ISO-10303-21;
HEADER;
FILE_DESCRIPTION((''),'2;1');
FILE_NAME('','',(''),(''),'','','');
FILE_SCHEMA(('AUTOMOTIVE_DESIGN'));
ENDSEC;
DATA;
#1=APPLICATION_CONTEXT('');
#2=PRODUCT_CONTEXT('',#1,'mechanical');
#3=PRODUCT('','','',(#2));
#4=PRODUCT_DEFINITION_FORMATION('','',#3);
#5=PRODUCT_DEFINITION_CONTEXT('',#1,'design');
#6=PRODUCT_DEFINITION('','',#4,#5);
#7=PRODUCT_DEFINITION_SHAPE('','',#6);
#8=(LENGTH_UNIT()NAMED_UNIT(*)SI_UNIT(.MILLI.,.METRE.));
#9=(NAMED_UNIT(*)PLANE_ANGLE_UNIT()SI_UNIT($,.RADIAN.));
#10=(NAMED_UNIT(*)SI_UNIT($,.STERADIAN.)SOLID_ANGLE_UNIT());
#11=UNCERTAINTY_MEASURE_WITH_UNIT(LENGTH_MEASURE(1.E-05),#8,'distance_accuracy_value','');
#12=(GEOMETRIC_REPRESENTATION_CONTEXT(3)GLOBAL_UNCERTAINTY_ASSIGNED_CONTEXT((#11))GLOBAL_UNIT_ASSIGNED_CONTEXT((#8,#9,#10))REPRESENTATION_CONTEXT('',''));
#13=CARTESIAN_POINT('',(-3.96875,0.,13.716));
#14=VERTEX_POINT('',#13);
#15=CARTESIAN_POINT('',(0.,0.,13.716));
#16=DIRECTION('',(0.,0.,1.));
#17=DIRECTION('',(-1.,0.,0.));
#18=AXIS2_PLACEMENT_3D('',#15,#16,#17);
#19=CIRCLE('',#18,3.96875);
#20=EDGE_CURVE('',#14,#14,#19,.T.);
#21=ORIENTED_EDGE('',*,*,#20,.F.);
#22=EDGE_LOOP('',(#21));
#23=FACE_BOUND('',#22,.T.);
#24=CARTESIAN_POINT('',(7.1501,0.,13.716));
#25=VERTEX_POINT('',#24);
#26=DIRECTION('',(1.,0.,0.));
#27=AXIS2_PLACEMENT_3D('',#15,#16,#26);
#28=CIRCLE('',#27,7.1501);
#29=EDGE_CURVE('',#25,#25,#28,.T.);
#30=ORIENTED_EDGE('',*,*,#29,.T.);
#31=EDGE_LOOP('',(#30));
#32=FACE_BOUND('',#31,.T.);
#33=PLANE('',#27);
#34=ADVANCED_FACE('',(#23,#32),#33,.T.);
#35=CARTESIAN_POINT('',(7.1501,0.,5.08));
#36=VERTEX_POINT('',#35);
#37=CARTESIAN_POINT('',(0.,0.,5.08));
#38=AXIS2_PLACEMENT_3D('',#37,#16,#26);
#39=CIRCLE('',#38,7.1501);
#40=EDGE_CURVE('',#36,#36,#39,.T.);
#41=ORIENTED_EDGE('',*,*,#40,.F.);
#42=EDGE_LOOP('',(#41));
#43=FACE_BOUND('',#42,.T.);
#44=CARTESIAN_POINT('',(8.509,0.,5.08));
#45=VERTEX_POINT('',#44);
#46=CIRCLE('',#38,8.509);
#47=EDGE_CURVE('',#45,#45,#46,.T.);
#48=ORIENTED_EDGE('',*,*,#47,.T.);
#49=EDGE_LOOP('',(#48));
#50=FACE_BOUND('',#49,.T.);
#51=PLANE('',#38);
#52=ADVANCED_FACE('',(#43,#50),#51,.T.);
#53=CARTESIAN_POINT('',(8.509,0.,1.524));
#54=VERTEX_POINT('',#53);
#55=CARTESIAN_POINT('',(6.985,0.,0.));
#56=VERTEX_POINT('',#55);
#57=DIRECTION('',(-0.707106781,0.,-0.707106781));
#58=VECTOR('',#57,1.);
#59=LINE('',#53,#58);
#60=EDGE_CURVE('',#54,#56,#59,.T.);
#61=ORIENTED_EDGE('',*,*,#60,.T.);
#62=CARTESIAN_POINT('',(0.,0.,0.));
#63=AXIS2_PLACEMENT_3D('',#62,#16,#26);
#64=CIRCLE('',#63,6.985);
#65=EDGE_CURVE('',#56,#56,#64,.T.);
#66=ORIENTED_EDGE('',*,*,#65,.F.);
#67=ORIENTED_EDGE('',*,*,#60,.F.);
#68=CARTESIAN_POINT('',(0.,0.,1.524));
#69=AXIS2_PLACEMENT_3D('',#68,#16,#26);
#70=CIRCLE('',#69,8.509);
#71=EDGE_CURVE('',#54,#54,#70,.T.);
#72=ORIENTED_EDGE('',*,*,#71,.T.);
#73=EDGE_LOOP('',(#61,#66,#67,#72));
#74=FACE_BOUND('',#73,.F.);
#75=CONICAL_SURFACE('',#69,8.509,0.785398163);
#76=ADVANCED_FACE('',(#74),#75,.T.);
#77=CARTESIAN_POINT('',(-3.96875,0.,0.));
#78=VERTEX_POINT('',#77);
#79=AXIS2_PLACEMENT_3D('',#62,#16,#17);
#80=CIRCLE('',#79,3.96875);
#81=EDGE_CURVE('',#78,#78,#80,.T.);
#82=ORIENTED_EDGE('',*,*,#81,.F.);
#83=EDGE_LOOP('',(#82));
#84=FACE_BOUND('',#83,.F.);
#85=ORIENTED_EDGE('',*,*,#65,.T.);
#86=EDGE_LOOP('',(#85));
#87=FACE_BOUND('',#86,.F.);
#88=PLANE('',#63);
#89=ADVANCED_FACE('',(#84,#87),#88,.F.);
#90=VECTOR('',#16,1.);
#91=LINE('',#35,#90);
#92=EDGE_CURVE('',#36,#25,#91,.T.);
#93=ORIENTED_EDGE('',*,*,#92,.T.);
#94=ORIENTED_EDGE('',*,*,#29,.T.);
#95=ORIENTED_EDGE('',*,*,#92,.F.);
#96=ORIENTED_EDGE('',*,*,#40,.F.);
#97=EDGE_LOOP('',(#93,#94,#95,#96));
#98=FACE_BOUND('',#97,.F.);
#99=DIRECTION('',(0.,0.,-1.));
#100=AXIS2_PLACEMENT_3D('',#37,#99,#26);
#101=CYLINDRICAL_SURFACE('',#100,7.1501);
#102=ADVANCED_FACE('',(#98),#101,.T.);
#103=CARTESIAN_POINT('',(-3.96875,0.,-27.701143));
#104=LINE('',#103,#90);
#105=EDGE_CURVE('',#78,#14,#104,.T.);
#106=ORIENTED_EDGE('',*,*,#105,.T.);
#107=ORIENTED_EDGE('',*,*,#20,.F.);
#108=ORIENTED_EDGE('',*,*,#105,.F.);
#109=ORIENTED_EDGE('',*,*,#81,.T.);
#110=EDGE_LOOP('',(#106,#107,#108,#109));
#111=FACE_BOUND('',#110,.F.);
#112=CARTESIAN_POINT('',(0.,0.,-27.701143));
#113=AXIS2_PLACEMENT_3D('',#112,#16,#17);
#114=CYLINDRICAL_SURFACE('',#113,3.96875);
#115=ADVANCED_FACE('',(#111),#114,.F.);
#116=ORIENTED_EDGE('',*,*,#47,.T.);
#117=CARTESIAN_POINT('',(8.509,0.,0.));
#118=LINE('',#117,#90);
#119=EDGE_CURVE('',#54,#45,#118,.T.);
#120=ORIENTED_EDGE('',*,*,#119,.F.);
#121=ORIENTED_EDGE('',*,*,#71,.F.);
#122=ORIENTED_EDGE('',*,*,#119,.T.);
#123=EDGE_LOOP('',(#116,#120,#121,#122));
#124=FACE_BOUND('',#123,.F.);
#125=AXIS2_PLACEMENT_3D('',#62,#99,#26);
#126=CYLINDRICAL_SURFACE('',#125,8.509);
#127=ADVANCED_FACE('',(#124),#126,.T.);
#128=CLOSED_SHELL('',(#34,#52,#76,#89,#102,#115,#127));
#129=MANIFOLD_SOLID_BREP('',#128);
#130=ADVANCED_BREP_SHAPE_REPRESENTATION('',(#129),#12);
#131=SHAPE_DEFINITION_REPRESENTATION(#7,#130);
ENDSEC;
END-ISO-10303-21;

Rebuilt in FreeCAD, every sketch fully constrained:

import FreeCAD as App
import Part
import Sketcher
Q = App.Units.Quantity


def edges_at(feature, points):
    """Names of the edges that pass closest to the given points."""
    edges = feature.Shape.Edges
    near = lambda p: min(range(len(edges)), key=lambda i: edges[i].distToShape(Part.Vertex(*p))[0])
    return sorted({f"Edge{near(p) + 1}" for p in points})

doc = App.newDocument("Part")
body = doc.addObject("PartDesign::Body", "Body")

sketch1 = doc.addObject("Sketcher::SketchObject", "Sketch")
body.addObject(sketch1)
sketch1.AttachmentSupport = (doc.XY_Plane, [""])
sketch1.MapMode = "FlatFace"
sketch1.addGeometry(Part.Circle(App.Vector(0, 0, 0), App.Vector(0, 0, 1), 9), False)
sketch1.addConstraint(Sketcher.Constraint("Coincident", 0, 3, -1, 1))
sketch1.addConstraint(Sketcher.Constraint("Diameter", 0, Q("0.67 in")))
pad1 = doc.addObject("PartDesign::Pad", "Pad")
body.addObject(pad1)
pad1.Profile = sketch1
pad1.Length = Q("0.2 in")

sketch2 = doc.addObject("Sketcher::SketchObject", "Sketch001")
body.addObject(sketch2)
sketch2.AttachmentSupport = (doc.XY_Plane, [""])
sketch2.MapMode = "FlatFace"
sketch2.AttachmentOffset = App.Placement(App.Vector(0, 0, 0.2 * 25.4), App.Rotation())
sketch2.addGeometry(Part.Circle(App.Vector(0, 0, 0), App.Vector(0, 0, 1), 7), False)
sketch2.addConstraint(Sketcher.Constraint("Coincident", 0, 3, -1, 1))
sketch2.addConstraint(Sketcher.Constraint("Diameter", 0, Q("0.563 in")))
pad2 = doc.addObject("PartDesign::Pad", "Pad001")
body.addObject(pad2)
pad2.Profile = sketch2
pad2.Length = Q("0.34 in")

sketch3 = doc.addObject("Sketcher::SketchObject", "Sketch002")
body.addObject(sketch3)
sketch3.AttachmentSupport = (doc.XY_Plane, [""])
sketch3.MapMode = "FlatFace"
sketch3.addGeometry(Part.Circle(App.Vector(0, 0, 0), App.Vector(0, 0, 1), 4), False)
sketch3.addConstraint(Sketcher.Constraint("Coincident", 0, 3, -1, 1))
sketch3.addConstraint(Sketcher.Constraint("Diameter", 0, Q("0.3125 in")))
doc.recompute()
hole = doc.addObject("PartDesign::Hole", "Hole")
body.addObject(hole)
hole.Profile = sketch3
hole.ThreadType = "None"
hole.Diameter = Q("0.3125 in")
hole.DepthType = "ThroughAll"
hole.Reversed = True
doc.recompute()

chamfer = doc.addObject("PartDesign::Chamfer", "Chamfer")
body.addObject(chamfer)
chamfer.Base = (hole, edges_at(hole, [(-8.509, 0, 0)]))
chamfer.ChamferType = "Two distances"
chamfer.Size = Q("0.06 in")
chamfer.Size2 = Q("0.06 in")

doc.recompute()
